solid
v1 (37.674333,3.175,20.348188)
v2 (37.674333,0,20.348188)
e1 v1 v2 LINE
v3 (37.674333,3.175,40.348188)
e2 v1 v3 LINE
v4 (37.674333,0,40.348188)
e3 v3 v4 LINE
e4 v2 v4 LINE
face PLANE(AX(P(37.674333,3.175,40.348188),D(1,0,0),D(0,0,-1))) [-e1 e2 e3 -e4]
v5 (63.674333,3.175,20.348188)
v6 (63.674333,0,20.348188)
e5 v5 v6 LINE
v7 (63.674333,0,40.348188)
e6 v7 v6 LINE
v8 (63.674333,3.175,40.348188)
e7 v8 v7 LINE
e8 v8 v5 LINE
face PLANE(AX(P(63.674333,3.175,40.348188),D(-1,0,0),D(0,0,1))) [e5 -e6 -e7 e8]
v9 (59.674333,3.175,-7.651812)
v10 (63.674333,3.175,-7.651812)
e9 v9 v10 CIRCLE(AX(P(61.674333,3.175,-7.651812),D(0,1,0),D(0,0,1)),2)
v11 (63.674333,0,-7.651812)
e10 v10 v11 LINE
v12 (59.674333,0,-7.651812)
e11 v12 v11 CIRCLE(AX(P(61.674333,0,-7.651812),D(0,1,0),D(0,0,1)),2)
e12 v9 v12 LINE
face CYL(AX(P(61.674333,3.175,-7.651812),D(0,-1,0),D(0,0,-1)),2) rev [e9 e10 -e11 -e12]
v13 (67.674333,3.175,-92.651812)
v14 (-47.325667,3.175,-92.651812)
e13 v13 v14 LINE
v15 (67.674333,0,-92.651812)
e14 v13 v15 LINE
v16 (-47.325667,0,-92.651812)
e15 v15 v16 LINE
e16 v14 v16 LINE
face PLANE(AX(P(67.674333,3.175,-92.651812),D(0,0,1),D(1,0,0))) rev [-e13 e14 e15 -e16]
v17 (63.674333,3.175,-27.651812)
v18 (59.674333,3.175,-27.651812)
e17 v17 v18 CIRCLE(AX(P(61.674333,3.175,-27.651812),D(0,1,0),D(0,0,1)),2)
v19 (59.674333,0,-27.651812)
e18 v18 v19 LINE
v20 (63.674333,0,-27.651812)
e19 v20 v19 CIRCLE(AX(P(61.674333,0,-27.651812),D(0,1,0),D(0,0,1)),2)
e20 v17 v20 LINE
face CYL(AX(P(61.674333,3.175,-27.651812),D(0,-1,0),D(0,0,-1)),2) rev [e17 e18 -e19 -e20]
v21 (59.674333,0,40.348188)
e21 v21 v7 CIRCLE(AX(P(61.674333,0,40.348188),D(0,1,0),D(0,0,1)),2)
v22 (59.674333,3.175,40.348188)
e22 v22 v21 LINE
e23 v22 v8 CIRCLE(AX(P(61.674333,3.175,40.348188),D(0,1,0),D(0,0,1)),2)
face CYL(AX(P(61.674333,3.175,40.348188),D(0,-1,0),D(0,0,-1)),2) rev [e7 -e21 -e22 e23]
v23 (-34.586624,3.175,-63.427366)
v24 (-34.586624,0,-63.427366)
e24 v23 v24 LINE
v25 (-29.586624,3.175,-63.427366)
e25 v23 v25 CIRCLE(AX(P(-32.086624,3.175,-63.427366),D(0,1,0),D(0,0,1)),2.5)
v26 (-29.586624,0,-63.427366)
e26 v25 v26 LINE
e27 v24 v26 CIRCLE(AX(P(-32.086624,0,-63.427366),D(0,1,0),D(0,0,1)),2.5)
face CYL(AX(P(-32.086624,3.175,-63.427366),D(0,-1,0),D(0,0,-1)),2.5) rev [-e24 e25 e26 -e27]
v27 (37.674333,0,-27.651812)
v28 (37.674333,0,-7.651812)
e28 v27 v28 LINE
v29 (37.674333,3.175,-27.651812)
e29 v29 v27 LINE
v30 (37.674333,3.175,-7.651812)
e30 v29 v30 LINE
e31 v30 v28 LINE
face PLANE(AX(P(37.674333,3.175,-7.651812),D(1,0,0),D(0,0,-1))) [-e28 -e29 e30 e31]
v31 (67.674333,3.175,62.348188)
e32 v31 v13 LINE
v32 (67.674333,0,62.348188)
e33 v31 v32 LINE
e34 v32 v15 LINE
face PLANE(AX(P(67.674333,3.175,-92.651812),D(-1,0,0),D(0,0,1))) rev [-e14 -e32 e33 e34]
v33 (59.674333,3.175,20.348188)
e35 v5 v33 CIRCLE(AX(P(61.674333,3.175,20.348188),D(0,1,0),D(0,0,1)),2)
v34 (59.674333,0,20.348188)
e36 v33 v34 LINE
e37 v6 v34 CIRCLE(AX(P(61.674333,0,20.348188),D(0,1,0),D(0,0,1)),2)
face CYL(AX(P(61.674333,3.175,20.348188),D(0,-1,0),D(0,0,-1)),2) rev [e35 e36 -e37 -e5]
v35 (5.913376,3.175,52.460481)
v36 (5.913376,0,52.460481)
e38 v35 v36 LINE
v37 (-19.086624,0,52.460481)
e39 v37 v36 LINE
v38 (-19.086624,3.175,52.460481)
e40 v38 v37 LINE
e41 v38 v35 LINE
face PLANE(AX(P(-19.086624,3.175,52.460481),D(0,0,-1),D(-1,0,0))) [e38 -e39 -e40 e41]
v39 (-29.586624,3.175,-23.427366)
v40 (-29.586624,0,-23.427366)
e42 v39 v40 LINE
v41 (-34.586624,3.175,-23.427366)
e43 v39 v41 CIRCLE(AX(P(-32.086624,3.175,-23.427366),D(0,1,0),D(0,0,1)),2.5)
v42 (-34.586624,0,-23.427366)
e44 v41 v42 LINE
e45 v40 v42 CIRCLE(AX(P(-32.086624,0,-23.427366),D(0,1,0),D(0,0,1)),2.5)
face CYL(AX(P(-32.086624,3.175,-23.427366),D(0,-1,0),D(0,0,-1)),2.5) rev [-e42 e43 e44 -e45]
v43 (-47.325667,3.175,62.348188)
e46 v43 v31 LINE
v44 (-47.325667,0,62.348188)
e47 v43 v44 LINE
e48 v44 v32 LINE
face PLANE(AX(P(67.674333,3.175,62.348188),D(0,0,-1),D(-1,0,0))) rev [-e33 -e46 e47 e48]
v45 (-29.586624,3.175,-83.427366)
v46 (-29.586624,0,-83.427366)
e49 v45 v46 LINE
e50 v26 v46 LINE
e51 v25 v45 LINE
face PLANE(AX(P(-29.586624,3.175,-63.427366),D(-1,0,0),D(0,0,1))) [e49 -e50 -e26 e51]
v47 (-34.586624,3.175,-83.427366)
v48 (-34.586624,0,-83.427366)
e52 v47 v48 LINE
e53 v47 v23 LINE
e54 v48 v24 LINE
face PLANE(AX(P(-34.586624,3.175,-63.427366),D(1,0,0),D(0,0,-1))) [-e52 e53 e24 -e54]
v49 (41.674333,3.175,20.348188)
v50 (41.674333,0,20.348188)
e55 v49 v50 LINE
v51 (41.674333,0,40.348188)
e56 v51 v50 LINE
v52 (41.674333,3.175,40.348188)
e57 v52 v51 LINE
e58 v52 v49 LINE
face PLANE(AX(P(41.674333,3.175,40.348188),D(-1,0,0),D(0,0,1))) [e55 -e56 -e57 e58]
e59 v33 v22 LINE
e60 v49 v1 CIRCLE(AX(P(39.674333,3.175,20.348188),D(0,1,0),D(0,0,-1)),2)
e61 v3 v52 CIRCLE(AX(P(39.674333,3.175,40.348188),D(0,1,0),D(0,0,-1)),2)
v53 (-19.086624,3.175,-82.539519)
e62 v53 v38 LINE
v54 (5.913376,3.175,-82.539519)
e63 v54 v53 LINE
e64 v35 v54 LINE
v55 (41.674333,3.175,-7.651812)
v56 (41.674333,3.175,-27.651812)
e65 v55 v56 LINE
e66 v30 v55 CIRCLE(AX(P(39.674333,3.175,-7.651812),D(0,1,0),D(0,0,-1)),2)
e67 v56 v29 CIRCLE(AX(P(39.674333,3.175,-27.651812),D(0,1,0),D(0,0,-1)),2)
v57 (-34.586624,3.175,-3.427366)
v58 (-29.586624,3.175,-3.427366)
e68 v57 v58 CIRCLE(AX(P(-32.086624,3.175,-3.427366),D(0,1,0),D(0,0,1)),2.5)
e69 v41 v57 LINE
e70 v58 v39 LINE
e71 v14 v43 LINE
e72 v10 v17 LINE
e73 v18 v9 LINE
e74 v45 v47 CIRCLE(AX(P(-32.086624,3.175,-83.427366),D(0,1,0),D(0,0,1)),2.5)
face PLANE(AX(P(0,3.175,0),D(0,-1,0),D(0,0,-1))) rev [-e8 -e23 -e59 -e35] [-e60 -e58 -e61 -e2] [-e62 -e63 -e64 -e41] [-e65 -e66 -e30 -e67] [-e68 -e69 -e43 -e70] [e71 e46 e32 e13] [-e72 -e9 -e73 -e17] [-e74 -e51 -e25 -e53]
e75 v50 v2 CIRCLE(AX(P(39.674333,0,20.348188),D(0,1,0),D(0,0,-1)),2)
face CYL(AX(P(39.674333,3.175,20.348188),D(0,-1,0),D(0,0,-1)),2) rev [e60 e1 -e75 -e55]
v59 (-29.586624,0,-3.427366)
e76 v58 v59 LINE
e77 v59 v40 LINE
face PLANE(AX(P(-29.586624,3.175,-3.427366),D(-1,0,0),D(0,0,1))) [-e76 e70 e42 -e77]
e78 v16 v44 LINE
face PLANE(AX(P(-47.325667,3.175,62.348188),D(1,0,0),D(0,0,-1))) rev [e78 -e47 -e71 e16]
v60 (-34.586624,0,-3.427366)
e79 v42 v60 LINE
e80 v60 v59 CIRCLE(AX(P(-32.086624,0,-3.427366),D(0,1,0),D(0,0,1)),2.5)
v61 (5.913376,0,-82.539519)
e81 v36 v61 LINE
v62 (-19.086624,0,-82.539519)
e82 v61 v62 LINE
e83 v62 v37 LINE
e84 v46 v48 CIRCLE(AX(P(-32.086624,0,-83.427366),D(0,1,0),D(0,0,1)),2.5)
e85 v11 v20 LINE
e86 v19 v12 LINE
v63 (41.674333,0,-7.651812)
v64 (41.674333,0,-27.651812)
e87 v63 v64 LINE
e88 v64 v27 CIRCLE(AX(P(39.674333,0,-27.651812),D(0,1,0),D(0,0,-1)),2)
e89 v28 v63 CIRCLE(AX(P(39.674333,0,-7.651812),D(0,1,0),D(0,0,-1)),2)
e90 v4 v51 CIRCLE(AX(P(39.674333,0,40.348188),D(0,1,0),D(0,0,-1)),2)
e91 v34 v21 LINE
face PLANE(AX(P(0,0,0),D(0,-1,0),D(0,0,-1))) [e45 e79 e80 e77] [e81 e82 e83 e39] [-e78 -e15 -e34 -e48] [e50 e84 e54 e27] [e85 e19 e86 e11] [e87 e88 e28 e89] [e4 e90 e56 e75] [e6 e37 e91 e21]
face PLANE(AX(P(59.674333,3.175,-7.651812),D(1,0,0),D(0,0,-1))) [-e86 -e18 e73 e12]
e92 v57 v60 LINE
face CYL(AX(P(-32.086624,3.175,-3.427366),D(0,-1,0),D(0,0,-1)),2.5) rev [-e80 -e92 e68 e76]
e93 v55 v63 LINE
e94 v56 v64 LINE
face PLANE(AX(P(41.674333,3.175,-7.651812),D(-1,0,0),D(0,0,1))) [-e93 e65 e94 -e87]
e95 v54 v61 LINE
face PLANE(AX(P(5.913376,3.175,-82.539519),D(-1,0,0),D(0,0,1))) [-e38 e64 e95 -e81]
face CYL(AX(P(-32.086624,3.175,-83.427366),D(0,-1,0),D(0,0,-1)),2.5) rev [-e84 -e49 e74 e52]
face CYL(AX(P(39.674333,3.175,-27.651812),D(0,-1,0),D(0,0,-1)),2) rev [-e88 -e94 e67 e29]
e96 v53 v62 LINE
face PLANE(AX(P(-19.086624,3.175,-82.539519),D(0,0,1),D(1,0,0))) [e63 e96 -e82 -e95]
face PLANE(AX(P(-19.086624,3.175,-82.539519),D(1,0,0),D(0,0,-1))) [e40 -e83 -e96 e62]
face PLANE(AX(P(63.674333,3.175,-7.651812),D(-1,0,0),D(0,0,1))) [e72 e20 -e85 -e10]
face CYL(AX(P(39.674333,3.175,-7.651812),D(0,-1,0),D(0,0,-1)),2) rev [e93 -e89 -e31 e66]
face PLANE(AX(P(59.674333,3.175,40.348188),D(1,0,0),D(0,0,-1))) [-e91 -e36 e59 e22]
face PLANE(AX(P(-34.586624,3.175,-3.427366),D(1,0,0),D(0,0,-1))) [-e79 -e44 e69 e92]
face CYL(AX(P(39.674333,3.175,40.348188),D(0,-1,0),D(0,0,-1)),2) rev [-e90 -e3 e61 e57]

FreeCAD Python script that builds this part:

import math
import FreeCAD as App
import Part
import Sketcher
Q = App.Units.Quantity

doc = App.newDocument("Part")
body = doc.addObject("PartDesign::Body", "Body")

# Sketch on XZ plane
sketch1 = doc.addObject("Sketcher::SketchObject", "Sketch")
body.addObject(sketch1)
sketch1.AttachmentSupport = (doc.XZ_Plane, [""])
sketch1.MapMode = "FlatFace"
sketch1.addGeometry([
    Part.LineSegment(App.Vector(67.7, 62.3, 0), App.Vector(67.7, -92.7, 0)),  # 0
    Part.LineSegment(App.Vector(67.7, -92.7, 0), App.Vector(-47.3, -92.7, 0)),  # 1
    Part.LineSegment(App.Vector(-47.3, -92.7, 0), App.Vector(-47.3, 62.3, 0)),  # 2
    Part.LineSegment(App.Vector(-47.3, 62.3, 0), App.Vector(67.7, 62.3, 0)),  # 3
    Part.LineSegment(App.Vector(59.7, 40.3, 0), App.Vector(59.7, 20.3, 0)),  # 4
    Part.ArcOfCircle(Part.Circle(App.Vector(61.7, 20.3, 0), App.Vector(0, 0, 1), 2), math.radians(180), math.radians(360)),  # 5
    Part.LineSegment(App.Vector(63.7, 20.3, 0), App.Vector(63.7, 40.3, 0)),  # 6
    Part.ArcOfCircle(Part.Circle(App.Vector(61.7, 40.3, 0), App.Vector(0, 0, 1), 2), math.radians(0), math.radians(180)),  # 7
    Part.ArcOfCircle(Part.Circle(App.Vector(39.7, 40.3, 0), App.Vector(0, 0, 1), 2), math.radians(0), math.radians(180)),  # 8
    Part.LineSegment(App.Vector(37.7, 40.3, 0), App.Vector(37.7, 20.3, 0)),  # 9
    Part.ArcOfCircle(Part.Circle(App.Vector(39.7, 20.3, 0), App.Vector(0, 0, 1), 2), math.radians(180), math.radians(360)),  # 10
    Part.LineSegment(App.Vector(41.7, 20.3, 0), App.Vector(41.7, 40.3, 0)),  # 11
    Part.LineSegment(App.Vector(-19.1, 52.5, 0), App.Vector(-19.1, -82.5, 0)),  # 12
    Part.LineSegment(App.Vector(-19.1, -82.5, 0), App.Vector(5.9, -82.5, 0)),  # 13
    Part.LineSegment(App.Vector(5.9, -82.5, 0), App.Vector(5.9, 52.5, 0)),  # 14
    Part.LineSegment(App.Vector(5.9, 52.5, 0), App.Vector(-19.1, 52.5, 0)),  # 15
    Part.LineSegment(App.Vector(-34.6, -3.4, 0), App.Vector(-34.6, -23.4, 0)),  # 16
    Part.ArcOfCircle(Part.Circle(App.Vector(-32.1, -23.4, 0), App.Vector(0, 0, 1), 2.5), math.radians(180), math.radians(360)),  # 17
    Part.LineSegment(App.Vector(-29.6, -23.4, 0), App.Vector(-29.6, -3.4, 0)),  # 18
    Part.ArcOfCircle(Part.Circle(App.Vector(-32.1, -3.4, 0), App.Vector(0, 0, 1), 2.5), math.radians(0), math.radians(180)),  # 19
    Part.LineSegment(App.Vector(59.7, -7.7, 0), App.Vector(59.7, -27.7, 0)),  # 20
    Part.ArcOfCircle(Part.Circle(App.Vector(61.7, -27.7, 0), App.Vector(0, 0, 1), 2), math.radians(180), math.radians(360)),  # 21
    Part.LineSegment(App.Vector(63.7, -27.7, 0), App.Vector(63.7, -7.7, 0)),  # 22
    Part.ArcOfCircle(Part.Circle(App.Vector(61.7, -7.7, 0), App.Vector(0, 0, 1), 2), math.radians(0), math.radians(180)),  # 23
    Part.ArcOfCircle(Part.Circle(App.Vector(39.7, -7.7, 0), App.Vector(0, 0, 1), 2), math.radians(0), math.radians(180)),  # 24
    Part.LineSegment(App.Vector(37.7, -7.7, 0), App.Vector(37.7, -27.7, 0)),  # 25
    Part.ArcOfCircle(Part.Circle(App.Vector(39.7, -27.7, 0), App.Vector(0, 0, 1), 2), math.radians(180), math.radians(360)),  # 26
    Part.LineSegment(App.Vector(41.7, -27.7, 0), App.Vector(41.7, -7.7, 0)),  # 27
    Part.LineSegment(App.Vector(-34.6, -63.4, 0), App.Vector(-34.6, -83.4, 0)),  # 28
    Part.ArcOfCircle(Part.Circle(App.Vector(-32.1, -83.4, 0), App.Vector(0, 0, 1), 2.5), math.radians(180), math.radians(360)),  # 29
    Part.LineSegment(App.Vector(-29.6, -83.4, 0), App.Vector(-29.6, -63.4, 0)),  # 30
    Part.ArcOfCircle(Part.Circle(App.Vector(-32.1, -63.4, 0), App.Vector(0, 0, 1), 2.5), math.radians(0), math.radians(180)),  # 31
], False)
sketch1.addConstraint([
    Sketcher.Constraint("Coincident", 0, 2, 1, 1),
    Sketcher.Constraint("Coincident", 1, 2, 2, 1),
    Sketcher.Constraint("Coincident", 2, 2, 3, 1),
    Sketcher.Constraint("Coincident", 3, 2, 0, 1),
    Sketcher.Constraint("Tangent", 4, 2, 5, 1),
    Sketcher.Constraint("Tangent", 5, 2, 6, 1),
    Sketcher.Constraint("Tangent", 6, 2, 7, 1),
    Sketcher.Constraint("Tangent", 7, 2, 4, 1),
    Sketcher.Constraint("Tangent", 8, 2, 9, 1),
    Sketcher.Constraint("Tangent", 9, 2, 10, 1),
    Sketcher.Constraint("Tangent", 10, 2, 11, 1),
    Sketcher.Constraint("Tangent", 11, 2, 8, 1),
    Sketcher.Constraint("Coincident", 12, 2, 13, 1),
    Sketcher.Constraint("Coincident", 13, 2, 14, 1),
    Sketcher.Constraint("Coincident", 14, 2, 15, 1),
    Sketcher.Constraint("Coincident", 15, 2, 12, 1),
    Sketcher.Constraint("Tangent", 16, 2, 17, 1),
    Sketcher.Constraint("Tangent", 17, 2, 18, 1),
    Sketcher.Constraint("Tangent", 18, 2, 19, 1),
    Sketcher.Constraint("Tangent", 19, 2, 16, 1),
    Sketcher.Constraint("Tangent", 20, 2, 21, 1),
    Sketcher.Constraint("Tangent", 21, 2, 22, 1),
    Sketcher.Constraint("Tangent", 22, 2, 23, 1),
    Sketcher.Constraint("Tangent", 23, 2, 20, 1),
    Sketcher.Constraint("Tangent", 24, 2, 25, 1),
    Sketcher.Constraint("Tangent", 25, 2, 26, 1),
    Sketcher.Constraint("Tangent", 26, 2, 27, 1),
    Sketcher.Constraint("Tangent", 27, 2, 24, 1),
    Sketcher.Constraint("Tangent", 28, 2, 29, 1),
    Sketcher.Constraint("Tangent", 29, 2, 30, 1),
    Sketcher.Constraint("Tangent", 30, 2, 31, 1),
    Sketcher.Constraint("Tangent", 31, 2, 28, 1),
    Sketcher.Constraint("Vertical", 0),
    Sketcher.Constraint("Horizontal", 1),
    Sketcher.Constraint("Vertical", 2),
    Sketcher.Constraint("Horizontal", 3),
    Sketcher.Constraint("Vertical", 4),
    Sketcher.Constraint("Vertical", 6),
    Sketcher.Constraint("Vertical", 9),
    Sketcher.Constraint("Vertical", 11),
    Sketcher.Constraint("Vertical", 12),
    Sketcher.Constraint("Horizontal", 13),
    Sketcher.Constraint("Vertical", 14),
    Sketcher.Constraint("Horizontal", 15),
    Sketcher.Constraint("Vertical", 16),
    Sketcher.Constraint("Vertical", 18),
    Sketcher.Constraint("Vertical", 20),
    Sketcher.Constraint("Vertical", 22),
    Sketcher.Constraint("Vertical", 25),
    Sketcher.Constraint("Vertical", 27),
    Sketcher.Constraint("Vertical", 28),
    Sketcher.Constraint("Vertical", 30),
    Sketcher.Constraint("Equal", 7, 8),
    Sketcher.Constraint("Equal", 10, 21),
    Sketcher.Constraint("Equal", 23, 24),
    Sketcher.Constraint("Equal", 19, 29),
    Sketcher.Constraint("Horizontal", 7, 3, 8, 3),
    Sketcher.Constraint("Horizontal", 5, 3, 10, 3),
    Sketcher.Constraint("Horizontal", 23, 3, 24, 3),
    Sketcher.Constraint("Horizontal", 21, 3, 26, 3),
    Sketcher.Constraint("Vertical", 7, 3, 21, 3),
    Sketcher.Constraint("Vertical", 10, 3, 24, 3),
    Sketcher.Constraint("Vertical", 19, 3, 29, 3),
    Sketcher.Constraint("Equal", 11, 16),
    Sketcher.Constraint("Equal", 18, 20),
    Sketcher.Constraint("Equal", 27, 28),
    Sketcher.Constraint("Radius", 5, Q("2 mm")),
    Sketcher.Constraint("Radius", 17, Q("2.5 mm")),
    Sketcher.Constraint("DistanceX", 1, 2, 1, 1, Q("115 mm")),
    Sketcher.Constraint("DistanceX", 13, 1, 13, 2, Q("25 mm")),
    Sketcher.Constraint("DistanceY", 0, 2, 0, 1, Q("155 mm")),
    Sketcher.Constraint("DistanceY", 4, 2, 4, 1, Q("20 mm")),
    Sketcher.Constraint("DistanceY", 12, 2, 12, 1, Q("135 mm")),
    Sketcher.Constraint("DistanceX", 8, 3, 7, 3, Q("22 mm")),
    Sketcher.Constraint("DistanceY", 21, 3, 5, 3, Q("48 mm")),
    Sketcher.Constraint("DistanceY", 29, 3, 17, 3, Q("60 mm")),
    Sketcher.Constraint("DistanceX", 21, 3, 0, 2, Q("6 mm")),
    Sketcher.Constraint("DistanceY", 0, 2, 21, 3, Q("65 mm")),
    Sketcher.Constraint("DistanceX", 29, 3, 12, 2, Q("13 mm")),
    Sketcher.Constraint("DistanceY", -1, 1, 5, 3, Q("20.348188 mm")),
    Sketcher.Constraint("DistanceY", 12, 2, -1, 1, Q("82.539519 mm")),
    Sketcher.Constraint("DistanceX", -1, 1, 5, 3, Q("61.674333 mm")),
    Sketcher.Constraint("DistanceX", 17, 3, -1, 1, Q("32.086624 mm")),
    Sketcher.Constraint("DistanceY", 17, 3, -1, 1, Q("23.427366 mm")),
])
pad1 = doc.addObject("PartDesign::Pad", "Pad")
body.addObject(pad1)
pad1.Profile = sketch1
pad1.Length = 3.175
pad1.Reversed = True

doc.recompute()
